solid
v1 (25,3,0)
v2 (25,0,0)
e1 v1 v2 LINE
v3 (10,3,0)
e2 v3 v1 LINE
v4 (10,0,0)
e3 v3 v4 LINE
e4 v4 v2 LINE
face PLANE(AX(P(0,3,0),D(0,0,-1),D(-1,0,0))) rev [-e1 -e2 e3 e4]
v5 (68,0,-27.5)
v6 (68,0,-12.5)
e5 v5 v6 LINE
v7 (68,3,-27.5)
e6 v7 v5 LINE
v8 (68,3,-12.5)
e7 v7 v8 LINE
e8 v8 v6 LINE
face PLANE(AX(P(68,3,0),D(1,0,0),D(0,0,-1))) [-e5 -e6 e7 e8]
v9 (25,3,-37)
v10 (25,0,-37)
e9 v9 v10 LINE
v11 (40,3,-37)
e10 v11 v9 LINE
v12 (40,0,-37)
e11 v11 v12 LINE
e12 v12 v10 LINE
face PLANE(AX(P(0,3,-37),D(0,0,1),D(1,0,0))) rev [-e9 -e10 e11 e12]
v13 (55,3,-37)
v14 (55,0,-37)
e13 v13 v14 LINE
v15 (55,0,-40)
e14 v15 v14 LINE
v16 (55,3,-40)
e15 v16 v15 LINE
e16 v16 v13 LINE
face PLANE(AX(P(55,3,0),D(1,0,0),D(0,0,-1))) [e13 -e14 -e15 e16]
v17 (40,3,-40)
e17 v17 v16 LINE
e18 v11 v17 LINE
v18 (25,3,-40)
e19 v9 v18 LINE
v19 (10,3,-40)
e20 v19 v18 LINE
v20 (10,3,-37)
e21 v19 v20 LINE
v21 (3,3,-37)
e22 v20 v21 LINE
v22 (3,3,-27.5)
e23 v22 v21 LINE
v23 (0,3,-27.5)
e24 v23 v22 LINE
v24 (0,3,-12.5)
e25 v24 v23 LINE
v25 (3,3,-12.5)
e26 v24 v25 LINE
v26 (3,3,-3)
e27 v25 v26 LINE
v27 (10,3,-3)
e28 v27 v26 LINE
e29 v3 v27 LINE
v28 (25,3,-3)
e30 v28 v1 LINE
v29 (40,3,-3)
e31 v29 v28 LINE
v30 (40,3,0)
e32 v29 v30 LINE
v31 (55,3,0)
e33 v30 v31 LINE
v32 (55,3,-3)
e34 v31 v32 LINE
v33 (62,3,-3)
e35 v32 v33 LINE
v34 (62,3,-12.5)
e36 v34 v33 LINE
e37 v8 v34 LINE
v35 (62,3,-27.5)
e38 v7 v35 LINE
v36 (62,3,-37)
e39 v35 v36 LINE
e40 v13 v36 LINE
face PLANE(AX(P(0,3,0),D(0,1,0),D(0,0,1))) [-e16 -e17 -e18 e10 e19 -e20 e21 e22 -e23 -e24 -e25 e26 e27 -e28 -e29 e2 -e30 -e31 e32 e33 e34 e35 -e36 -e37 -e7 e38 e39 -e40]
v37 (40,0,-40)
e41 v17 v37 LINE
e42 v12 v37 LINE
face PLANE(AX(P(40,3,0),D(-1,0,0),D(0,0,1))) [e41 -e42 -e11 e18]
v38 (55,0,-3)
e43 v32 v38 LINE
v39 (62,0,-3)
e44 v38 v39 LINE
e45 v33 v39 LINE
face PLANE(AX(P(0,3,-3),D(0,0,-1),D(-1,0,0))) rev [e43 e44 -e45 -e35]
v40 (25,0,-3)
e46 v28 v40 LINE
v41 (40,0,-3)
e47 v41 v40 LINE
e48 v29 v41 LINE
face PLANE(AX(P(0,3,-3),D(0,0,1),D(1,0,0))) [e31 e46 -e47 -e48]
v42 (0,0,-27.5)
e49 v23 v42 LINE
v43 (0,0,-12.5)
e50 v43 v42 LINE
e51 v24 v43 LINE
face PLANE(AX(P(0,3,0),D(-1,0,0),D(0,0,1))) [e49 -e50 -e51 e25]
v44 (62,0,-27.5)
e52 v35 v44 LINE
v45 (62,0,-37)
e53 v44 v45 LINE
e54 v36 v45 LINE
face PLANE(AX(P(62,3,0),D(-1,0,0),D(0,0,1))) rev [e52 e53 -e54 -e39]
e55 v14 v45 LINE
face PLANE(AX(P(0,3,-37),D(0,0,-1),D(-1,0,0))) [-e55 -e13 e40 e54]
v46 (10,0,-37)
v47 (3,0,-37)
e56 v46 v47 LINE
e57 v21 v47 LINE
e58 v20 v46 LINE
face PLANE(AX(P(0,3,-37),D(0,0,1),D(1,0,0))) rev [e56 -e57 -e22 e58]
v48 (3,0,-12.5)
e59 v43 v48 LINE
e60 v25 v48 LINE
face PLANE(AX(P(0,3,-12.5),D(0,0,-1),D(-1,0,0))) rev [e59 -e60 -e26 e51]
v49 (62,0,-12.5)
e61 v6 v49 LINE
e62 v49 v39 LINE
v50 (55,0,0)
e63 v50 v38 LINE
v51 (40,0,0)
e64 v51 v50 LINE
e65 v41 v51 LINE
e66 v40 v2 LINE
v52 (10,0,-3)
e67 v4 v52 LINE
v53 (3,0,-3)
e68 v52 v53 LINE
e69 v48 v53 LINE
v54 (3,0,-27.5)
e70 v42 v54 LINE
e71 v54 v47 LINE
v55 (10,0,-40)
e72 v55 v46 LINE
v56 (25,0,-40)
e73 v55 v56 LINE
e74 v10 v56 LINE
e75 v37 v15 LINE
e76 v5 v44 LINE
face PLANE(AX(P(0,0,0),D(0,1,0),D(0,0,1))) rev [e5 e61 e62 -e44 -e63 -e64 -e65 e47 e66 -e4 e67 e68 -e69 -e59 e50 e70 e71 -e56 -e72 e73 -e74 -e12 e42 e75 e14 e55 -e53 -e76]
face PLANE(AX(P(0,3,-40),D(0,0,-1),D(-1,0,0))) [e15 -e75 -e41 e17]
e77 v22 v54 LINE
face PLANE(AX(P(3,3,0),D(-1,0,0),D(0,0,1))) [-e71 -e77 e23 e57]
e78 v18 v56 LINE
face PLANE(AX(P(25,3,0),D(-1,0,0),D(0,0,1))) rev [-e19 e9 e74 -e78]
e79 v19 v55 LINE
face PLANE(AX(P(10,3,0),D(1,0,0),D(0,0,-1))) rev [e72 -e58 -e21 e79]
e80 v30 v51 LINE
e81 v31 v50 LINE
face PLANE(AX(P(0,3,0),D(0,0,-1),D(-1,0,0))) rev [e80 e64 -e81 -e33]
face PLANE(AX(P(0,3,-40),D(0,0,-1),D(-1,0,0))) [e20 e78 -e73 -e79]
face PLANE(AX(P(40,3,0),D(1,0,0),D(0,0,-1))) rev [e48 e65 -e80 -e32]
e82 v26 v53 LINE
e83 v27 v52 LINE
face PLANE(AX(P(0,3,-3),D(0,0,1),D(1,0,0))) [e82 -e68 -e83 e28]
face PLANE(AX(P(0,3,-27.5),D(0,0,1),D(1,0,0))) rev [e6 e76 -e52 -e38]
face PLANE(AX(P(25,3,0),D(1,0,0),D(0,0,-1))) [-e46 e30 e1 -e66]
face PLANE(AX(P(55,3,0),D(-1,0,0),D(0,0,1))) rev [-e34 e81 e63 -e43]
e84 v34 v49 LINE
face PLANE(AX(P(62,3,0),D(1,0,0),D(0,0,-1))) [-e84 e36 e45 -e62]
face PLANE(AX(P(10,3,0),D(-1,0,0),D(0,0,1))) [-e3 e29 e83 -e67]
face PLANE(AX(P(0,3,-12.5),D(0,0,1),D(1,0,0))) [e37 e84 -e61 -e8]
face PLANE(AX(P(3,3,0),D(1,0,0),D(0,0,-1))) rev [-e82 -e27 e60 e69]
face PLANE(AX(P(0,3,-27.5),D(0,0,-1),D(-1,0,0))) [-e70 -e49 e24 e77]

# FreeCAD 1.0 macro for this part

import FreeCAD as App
import Part
import Sketcher
from FreeCAD import Vector
Q = App.Units.Quantity

doc = App.newDocument("Part")
params = doc.addObject("Spreadsheet::Sheet", "Params")
for row, (alias, value) in enumerate([
    ("sketch1_width", "7 mm"),
    ("sketch1_width2", "6 mm"),
    ("sketch1_width3", "15 mm"),
    ("sketch1_width4", "3 mm"),
    ("sketch1_height", "9.5 mm"),
    ("pad1_length", "3 mm"),
], start=1):
    params.set(f"A{row}", alias)
    params.set(f"B{row}", "=" + value)
    params.setAlias(f"B{row}", alias)

body = doc.addObject("PartDesign::Body", "Body")

# Sketch on XZ plane
sketch1 = body.newObject("Sketcher::SketchObject", "Sketch")
sketch1.AttachmentSupport = (doc.getObject("XZ_Plane"), [""])
sketch1.MapMode = "FlatFace"
sketch1.addGeometry([
    Part.LineSegment(Vector(55, 0, 0), Vector(55, -3, 0)),  # 0
    Part.LineSegment(Vector(55, -3, 0), Vector(62, -3, 0)),  # 1
    Part.LineSegment(Vector(62, -3, 0), Vector(62, -12.5, 0)),  # 2
    Part.LineSegment(Vector(62, -12.5, 0), Vector(68, -12.5, 0)),  # 3
    Part.LineSegment(Vector(68, -12.5, 0), Vector(68, -27.5, 0)),  # 4
    Part.LineSegment(Vector(68, -27.5, 0), Vector(62, -27.5, 0)),  # 5
    Part.LineSegment(Vector(62, -27.5, 0), Vector(62, -37, 0)),  # 6
    Part.LineSegment(Vector(62, -37, 0), Vector(55, -37, 0)),  # 7
    Part.LineSegment(Vector(55, -37, 0), Vector(55, -40, 0)),  # 8
    Part.LineSegment(Vector(55, -40, 0), Vector(40, -40, 0)),  # 9
    Part.LineSegment(Vector(40, -40, 0), Vector(40, -37, 0)),  # 10
    Part.LineSegment(Vector(40, -37, 0), Vector(25, -37, 0)),  # 11
    Part.LineSegment(Vector(25, -37, 0), Vector(25, -40, 0)),  # 12
    Part.LineSegment(Vector(25, -40, 0), Vector(10, -40, 0)),  # 13
    Part.LineSegment(Vector(10, -40, 0), Vector(10, -37, 0)),  # 14
    Part.LineSegment(Vector(10, -37, 0), Vector(3, -37, 0)),  # 15
    Part.LineSegment(Vector(3, -37, 0), Vector(3, -27.5, 0)),  # 16
    Part.LineSegment(Vector(3, -27.5, 0), Vector(0, -27.5, 0)),  # 17
    Part.LineSegment(Vector(0, -27.5, 0), Vector(0, -12.5, 0)),  # 18
    Part.LineSegment(Vector(0, -12.5, 0), Vector(3, -12.5, 0)),  # 19
    Part.LineSegment(Vector(3, -12.5, 0), Vector(3, -3, 0)),  # 20
    Part.LineSegment(Vector(3, -3, 0), Vector(10, -3, 0)),  # 21
    Part.LineSegment(Vector(10, -3, 0), Vector(10, 0, 0)),  # 22
    Part.LineSegment(Vector(10, 0, 0), Vector(25, 0, 0)),  # 23
    Part.LineSegment(Vector(25, 0, 0), Vector(25, -3, 0)),  # 24
    Part.LineSegment(Vector(25, -3, 0), Vector(40, -3, 0)),  # 25
    Part.LineSegment(Vector(40, -3, 0), Vector(40, 0, 0)),  # 26
    Part.LineSegment(Vector(40, 0, 0), Vector(55, 0, 0)),  # 27
], False)
sketch1.addConstraint([
    Sketcher.Constraint("Coincident", 0, 2, 1, 1),
    Sketcher.Constraint("Coincident", 1, 2, 2, 1),
    Sketcher.Constraint("Coincident", 2, 2, 3, 1),
    Sketcher.Constraint("Coincident", 3, 2, 4, 1),
    Sketcher.Constraint("Coincident", 4, 2, 5, 1),
    Sketcher.Constraint("Coincident", 5, 2, 6, 1),
    Sketcher.Constraint("Coincident", 6, 2, 7, 1),
    Sketcher.Constraint("Coincident", 7, 2, 8, 1),
    Sketcher.Constraint("Coincident", 8, 2, 9, 1),
    Sketcher.Constraint("Coincident", 9, 2, 10, 1),
    Sketcher.Constraint("Coincident", 10, 2, 11, 1),
    Sketcher.Constraint("Coincident", 11, 2, 12, 1),
    Sketcher.Constraint("Coincident", 12, 2, 13, 1),
    Sketcher.Constraint("Coincident", 13, 2, 14, 1),
    Sketcher.Constraint("Coincident", 14, 2, 15, 1),
    Sketcher.Constraint("Coincident", 15, 2, 16, 1),
    Sketcher.Constraint("Coincident", 16, 2, 17, 1),
    Sketcher.Constraint("Coincident", 17, 2, 18, 1),
    Sketcher.Constraint("Coincident", 18, 2, 19, 1),
    Sketcher.Constraint("Coincident", 19, 2, 20, 1),
    Sketcher.Constraint("Coincident", 20, 2, 21, 1),
    Sketcher.Constraint("Coincident", 21, 2, 22, 1),
    Sketcher.Constraint("Coincident", 22, 2, 23, 1),
    Sketcher.Constraint("Coincident", 23, 2, 24, 1),
    Sketcher.Constraint("Coincident", 24, 2, 25, 1),
    Sketcher.Constraint("Coincident", 25, 2, 26, 1),
    Sketcher.Constraint("Coincident", 26, 2, 27, 1),
    Sketcher.Constraint("Coincident", 27, 2, 0, 1),
    Sketcher.Constraint("Vertical", 0),
    Sketcher.Constraint("Horizontal", 1),
    Sketcher.Constraint("Vertical", 2),
    Sketcher.Constraint("Horizontal", 3),
    Sketcher.Constraint("Vertical", 4),
    Sketcher.Constraint("Horizontal", 5),
    Sketcher.Constraint("Vertical", 6),
    Sketcher.Constraint("Horizontal", 7),
    Sketcher.Constraint("Vertical", 8),
    Sketcher.Constraint("Horizontal", 9),
    Sketcher.Constraint("Vertical", 10),
    Sketcher.Constraint("Horizontal", 11),
    Sketcher.Constraint("Vertical", 12),
    Sketcher.Constraint("Horizontal", 13),
    Sketcher.Constraint("Vertical", 14),
    Sketcher.Constraint("Horizontal", 15),
    Sketcher.Constraint("Vertical", 16),
    Sketcher.Constraint("Horizontal", 17),
    Sketcher.Constraint("Vertical", 18),
    Sketcher.Constraint("Horizontal", 19),
    Sketcher.Constraint("Vertical", 20),
    Sketcher.Constraint("Horizontal", 21),
    Sketcher.Constraint("Vertical", 22),
    Sketcher.Constraint("Horizontal", 23),
    Sketcher.Constraint("Vertical", 24),
    Sketcher.Constraint("Horizontal", 25),
    Sketcher.Constraint("Vertical", 26),
    Sketcher.Constraint("Horizontal", 27),
    Sketcher.Constraint("PointOnObject", 17, 2, -2),
    Sketcher.Constraint("PointOnObject", 22, 2, -1),
    Sketcher.Constraint("PointOnObject", 26, 2, -1),
    Sketcher.Constraint("Horizontal", 7, 2, 10, 2),
    Sketcher.Constraint("Horizontal", 9, 2, 12, 2),
    Sketcher.Constraint("Horizontal", 11, 2, 14, 2),
    Sketcher.Constraint("Horizontal", 5, 2, 16, 2),
    Sketcher.Constraint("Horizontal", 3, 2, 18, 2),
    Sketcher.Constraint("Horizontal", 1, 2, 20, 2),
    Sketcher.Constraint("Horizontal", 21, 2, 24, 2),
    Sketcher.Constraint("Vertical", 2, 2, 5, 2),
    Sketcher.Constraint("Vertical", 0, 2, 7, 2),
    Sketcher.Constraint("Vertical", 16, 2, 19, 2),
    Sketcher.Constraint("Vertical", 14, 2, 21, 2),
    Sketcher.Constraint("Vertical", 12, 2, 23, 2),
    Sketcher.Constraint("Vertical", 10, 2, 25, 2),
    Sketcher.Constraint("Equal", 9, 11),
    Sketcher.Constraint("Equal", 11, 13),
    Sketcher.Constraint("Equal", 7, 15),
    Sketcher.Constraint("Equal", 19, 0),
    Sketcher.Constraint("Equal", 27, 4),
    Sketcher.Constraint("Equal", 2, 6),
    Sketcher.Constraint("Equal", 0, 8),
    Sketcher.Constraint("DistanceX", 1, 1, 1, 2, Q("7 mm")),
    Sketcher.Constraint("DistanceX", 3, 1, 3, 2, Q("6 mm")),
    Sketcher.Constraint("DistanceX", 9, 2, 9, 1, Q("15 mm")),
    Sketcher.Constraint("DistanceX", 17, 2, 17, 1, Q("3 mm")),
    Sketcher.Constraint("DistanceY", 2, 2, 2, 1, Q("9.5 mm")),
])
sketch1.setExpression("Constraints[79]", "Params.sketch1_width")
sketch1.setExpression("Constraints[80]", "Params.sketch1_width2")
sketch1.setExpression("Constraints[81]", "Params.sketch1_width3")
sketch1.setExpression("Constraints[82]", "Params.sketch1_width4")
sketch1.setExpression("Constraints[83]", "Params.sketch1_height")
pad1 = body.newObject("PartDesign::Pad", "Pad")
pad1.Profile = sketch1
pad1.setExpression("Length", "Params.pad1_length")
pad1.Reversed = True

doc.recompute()
